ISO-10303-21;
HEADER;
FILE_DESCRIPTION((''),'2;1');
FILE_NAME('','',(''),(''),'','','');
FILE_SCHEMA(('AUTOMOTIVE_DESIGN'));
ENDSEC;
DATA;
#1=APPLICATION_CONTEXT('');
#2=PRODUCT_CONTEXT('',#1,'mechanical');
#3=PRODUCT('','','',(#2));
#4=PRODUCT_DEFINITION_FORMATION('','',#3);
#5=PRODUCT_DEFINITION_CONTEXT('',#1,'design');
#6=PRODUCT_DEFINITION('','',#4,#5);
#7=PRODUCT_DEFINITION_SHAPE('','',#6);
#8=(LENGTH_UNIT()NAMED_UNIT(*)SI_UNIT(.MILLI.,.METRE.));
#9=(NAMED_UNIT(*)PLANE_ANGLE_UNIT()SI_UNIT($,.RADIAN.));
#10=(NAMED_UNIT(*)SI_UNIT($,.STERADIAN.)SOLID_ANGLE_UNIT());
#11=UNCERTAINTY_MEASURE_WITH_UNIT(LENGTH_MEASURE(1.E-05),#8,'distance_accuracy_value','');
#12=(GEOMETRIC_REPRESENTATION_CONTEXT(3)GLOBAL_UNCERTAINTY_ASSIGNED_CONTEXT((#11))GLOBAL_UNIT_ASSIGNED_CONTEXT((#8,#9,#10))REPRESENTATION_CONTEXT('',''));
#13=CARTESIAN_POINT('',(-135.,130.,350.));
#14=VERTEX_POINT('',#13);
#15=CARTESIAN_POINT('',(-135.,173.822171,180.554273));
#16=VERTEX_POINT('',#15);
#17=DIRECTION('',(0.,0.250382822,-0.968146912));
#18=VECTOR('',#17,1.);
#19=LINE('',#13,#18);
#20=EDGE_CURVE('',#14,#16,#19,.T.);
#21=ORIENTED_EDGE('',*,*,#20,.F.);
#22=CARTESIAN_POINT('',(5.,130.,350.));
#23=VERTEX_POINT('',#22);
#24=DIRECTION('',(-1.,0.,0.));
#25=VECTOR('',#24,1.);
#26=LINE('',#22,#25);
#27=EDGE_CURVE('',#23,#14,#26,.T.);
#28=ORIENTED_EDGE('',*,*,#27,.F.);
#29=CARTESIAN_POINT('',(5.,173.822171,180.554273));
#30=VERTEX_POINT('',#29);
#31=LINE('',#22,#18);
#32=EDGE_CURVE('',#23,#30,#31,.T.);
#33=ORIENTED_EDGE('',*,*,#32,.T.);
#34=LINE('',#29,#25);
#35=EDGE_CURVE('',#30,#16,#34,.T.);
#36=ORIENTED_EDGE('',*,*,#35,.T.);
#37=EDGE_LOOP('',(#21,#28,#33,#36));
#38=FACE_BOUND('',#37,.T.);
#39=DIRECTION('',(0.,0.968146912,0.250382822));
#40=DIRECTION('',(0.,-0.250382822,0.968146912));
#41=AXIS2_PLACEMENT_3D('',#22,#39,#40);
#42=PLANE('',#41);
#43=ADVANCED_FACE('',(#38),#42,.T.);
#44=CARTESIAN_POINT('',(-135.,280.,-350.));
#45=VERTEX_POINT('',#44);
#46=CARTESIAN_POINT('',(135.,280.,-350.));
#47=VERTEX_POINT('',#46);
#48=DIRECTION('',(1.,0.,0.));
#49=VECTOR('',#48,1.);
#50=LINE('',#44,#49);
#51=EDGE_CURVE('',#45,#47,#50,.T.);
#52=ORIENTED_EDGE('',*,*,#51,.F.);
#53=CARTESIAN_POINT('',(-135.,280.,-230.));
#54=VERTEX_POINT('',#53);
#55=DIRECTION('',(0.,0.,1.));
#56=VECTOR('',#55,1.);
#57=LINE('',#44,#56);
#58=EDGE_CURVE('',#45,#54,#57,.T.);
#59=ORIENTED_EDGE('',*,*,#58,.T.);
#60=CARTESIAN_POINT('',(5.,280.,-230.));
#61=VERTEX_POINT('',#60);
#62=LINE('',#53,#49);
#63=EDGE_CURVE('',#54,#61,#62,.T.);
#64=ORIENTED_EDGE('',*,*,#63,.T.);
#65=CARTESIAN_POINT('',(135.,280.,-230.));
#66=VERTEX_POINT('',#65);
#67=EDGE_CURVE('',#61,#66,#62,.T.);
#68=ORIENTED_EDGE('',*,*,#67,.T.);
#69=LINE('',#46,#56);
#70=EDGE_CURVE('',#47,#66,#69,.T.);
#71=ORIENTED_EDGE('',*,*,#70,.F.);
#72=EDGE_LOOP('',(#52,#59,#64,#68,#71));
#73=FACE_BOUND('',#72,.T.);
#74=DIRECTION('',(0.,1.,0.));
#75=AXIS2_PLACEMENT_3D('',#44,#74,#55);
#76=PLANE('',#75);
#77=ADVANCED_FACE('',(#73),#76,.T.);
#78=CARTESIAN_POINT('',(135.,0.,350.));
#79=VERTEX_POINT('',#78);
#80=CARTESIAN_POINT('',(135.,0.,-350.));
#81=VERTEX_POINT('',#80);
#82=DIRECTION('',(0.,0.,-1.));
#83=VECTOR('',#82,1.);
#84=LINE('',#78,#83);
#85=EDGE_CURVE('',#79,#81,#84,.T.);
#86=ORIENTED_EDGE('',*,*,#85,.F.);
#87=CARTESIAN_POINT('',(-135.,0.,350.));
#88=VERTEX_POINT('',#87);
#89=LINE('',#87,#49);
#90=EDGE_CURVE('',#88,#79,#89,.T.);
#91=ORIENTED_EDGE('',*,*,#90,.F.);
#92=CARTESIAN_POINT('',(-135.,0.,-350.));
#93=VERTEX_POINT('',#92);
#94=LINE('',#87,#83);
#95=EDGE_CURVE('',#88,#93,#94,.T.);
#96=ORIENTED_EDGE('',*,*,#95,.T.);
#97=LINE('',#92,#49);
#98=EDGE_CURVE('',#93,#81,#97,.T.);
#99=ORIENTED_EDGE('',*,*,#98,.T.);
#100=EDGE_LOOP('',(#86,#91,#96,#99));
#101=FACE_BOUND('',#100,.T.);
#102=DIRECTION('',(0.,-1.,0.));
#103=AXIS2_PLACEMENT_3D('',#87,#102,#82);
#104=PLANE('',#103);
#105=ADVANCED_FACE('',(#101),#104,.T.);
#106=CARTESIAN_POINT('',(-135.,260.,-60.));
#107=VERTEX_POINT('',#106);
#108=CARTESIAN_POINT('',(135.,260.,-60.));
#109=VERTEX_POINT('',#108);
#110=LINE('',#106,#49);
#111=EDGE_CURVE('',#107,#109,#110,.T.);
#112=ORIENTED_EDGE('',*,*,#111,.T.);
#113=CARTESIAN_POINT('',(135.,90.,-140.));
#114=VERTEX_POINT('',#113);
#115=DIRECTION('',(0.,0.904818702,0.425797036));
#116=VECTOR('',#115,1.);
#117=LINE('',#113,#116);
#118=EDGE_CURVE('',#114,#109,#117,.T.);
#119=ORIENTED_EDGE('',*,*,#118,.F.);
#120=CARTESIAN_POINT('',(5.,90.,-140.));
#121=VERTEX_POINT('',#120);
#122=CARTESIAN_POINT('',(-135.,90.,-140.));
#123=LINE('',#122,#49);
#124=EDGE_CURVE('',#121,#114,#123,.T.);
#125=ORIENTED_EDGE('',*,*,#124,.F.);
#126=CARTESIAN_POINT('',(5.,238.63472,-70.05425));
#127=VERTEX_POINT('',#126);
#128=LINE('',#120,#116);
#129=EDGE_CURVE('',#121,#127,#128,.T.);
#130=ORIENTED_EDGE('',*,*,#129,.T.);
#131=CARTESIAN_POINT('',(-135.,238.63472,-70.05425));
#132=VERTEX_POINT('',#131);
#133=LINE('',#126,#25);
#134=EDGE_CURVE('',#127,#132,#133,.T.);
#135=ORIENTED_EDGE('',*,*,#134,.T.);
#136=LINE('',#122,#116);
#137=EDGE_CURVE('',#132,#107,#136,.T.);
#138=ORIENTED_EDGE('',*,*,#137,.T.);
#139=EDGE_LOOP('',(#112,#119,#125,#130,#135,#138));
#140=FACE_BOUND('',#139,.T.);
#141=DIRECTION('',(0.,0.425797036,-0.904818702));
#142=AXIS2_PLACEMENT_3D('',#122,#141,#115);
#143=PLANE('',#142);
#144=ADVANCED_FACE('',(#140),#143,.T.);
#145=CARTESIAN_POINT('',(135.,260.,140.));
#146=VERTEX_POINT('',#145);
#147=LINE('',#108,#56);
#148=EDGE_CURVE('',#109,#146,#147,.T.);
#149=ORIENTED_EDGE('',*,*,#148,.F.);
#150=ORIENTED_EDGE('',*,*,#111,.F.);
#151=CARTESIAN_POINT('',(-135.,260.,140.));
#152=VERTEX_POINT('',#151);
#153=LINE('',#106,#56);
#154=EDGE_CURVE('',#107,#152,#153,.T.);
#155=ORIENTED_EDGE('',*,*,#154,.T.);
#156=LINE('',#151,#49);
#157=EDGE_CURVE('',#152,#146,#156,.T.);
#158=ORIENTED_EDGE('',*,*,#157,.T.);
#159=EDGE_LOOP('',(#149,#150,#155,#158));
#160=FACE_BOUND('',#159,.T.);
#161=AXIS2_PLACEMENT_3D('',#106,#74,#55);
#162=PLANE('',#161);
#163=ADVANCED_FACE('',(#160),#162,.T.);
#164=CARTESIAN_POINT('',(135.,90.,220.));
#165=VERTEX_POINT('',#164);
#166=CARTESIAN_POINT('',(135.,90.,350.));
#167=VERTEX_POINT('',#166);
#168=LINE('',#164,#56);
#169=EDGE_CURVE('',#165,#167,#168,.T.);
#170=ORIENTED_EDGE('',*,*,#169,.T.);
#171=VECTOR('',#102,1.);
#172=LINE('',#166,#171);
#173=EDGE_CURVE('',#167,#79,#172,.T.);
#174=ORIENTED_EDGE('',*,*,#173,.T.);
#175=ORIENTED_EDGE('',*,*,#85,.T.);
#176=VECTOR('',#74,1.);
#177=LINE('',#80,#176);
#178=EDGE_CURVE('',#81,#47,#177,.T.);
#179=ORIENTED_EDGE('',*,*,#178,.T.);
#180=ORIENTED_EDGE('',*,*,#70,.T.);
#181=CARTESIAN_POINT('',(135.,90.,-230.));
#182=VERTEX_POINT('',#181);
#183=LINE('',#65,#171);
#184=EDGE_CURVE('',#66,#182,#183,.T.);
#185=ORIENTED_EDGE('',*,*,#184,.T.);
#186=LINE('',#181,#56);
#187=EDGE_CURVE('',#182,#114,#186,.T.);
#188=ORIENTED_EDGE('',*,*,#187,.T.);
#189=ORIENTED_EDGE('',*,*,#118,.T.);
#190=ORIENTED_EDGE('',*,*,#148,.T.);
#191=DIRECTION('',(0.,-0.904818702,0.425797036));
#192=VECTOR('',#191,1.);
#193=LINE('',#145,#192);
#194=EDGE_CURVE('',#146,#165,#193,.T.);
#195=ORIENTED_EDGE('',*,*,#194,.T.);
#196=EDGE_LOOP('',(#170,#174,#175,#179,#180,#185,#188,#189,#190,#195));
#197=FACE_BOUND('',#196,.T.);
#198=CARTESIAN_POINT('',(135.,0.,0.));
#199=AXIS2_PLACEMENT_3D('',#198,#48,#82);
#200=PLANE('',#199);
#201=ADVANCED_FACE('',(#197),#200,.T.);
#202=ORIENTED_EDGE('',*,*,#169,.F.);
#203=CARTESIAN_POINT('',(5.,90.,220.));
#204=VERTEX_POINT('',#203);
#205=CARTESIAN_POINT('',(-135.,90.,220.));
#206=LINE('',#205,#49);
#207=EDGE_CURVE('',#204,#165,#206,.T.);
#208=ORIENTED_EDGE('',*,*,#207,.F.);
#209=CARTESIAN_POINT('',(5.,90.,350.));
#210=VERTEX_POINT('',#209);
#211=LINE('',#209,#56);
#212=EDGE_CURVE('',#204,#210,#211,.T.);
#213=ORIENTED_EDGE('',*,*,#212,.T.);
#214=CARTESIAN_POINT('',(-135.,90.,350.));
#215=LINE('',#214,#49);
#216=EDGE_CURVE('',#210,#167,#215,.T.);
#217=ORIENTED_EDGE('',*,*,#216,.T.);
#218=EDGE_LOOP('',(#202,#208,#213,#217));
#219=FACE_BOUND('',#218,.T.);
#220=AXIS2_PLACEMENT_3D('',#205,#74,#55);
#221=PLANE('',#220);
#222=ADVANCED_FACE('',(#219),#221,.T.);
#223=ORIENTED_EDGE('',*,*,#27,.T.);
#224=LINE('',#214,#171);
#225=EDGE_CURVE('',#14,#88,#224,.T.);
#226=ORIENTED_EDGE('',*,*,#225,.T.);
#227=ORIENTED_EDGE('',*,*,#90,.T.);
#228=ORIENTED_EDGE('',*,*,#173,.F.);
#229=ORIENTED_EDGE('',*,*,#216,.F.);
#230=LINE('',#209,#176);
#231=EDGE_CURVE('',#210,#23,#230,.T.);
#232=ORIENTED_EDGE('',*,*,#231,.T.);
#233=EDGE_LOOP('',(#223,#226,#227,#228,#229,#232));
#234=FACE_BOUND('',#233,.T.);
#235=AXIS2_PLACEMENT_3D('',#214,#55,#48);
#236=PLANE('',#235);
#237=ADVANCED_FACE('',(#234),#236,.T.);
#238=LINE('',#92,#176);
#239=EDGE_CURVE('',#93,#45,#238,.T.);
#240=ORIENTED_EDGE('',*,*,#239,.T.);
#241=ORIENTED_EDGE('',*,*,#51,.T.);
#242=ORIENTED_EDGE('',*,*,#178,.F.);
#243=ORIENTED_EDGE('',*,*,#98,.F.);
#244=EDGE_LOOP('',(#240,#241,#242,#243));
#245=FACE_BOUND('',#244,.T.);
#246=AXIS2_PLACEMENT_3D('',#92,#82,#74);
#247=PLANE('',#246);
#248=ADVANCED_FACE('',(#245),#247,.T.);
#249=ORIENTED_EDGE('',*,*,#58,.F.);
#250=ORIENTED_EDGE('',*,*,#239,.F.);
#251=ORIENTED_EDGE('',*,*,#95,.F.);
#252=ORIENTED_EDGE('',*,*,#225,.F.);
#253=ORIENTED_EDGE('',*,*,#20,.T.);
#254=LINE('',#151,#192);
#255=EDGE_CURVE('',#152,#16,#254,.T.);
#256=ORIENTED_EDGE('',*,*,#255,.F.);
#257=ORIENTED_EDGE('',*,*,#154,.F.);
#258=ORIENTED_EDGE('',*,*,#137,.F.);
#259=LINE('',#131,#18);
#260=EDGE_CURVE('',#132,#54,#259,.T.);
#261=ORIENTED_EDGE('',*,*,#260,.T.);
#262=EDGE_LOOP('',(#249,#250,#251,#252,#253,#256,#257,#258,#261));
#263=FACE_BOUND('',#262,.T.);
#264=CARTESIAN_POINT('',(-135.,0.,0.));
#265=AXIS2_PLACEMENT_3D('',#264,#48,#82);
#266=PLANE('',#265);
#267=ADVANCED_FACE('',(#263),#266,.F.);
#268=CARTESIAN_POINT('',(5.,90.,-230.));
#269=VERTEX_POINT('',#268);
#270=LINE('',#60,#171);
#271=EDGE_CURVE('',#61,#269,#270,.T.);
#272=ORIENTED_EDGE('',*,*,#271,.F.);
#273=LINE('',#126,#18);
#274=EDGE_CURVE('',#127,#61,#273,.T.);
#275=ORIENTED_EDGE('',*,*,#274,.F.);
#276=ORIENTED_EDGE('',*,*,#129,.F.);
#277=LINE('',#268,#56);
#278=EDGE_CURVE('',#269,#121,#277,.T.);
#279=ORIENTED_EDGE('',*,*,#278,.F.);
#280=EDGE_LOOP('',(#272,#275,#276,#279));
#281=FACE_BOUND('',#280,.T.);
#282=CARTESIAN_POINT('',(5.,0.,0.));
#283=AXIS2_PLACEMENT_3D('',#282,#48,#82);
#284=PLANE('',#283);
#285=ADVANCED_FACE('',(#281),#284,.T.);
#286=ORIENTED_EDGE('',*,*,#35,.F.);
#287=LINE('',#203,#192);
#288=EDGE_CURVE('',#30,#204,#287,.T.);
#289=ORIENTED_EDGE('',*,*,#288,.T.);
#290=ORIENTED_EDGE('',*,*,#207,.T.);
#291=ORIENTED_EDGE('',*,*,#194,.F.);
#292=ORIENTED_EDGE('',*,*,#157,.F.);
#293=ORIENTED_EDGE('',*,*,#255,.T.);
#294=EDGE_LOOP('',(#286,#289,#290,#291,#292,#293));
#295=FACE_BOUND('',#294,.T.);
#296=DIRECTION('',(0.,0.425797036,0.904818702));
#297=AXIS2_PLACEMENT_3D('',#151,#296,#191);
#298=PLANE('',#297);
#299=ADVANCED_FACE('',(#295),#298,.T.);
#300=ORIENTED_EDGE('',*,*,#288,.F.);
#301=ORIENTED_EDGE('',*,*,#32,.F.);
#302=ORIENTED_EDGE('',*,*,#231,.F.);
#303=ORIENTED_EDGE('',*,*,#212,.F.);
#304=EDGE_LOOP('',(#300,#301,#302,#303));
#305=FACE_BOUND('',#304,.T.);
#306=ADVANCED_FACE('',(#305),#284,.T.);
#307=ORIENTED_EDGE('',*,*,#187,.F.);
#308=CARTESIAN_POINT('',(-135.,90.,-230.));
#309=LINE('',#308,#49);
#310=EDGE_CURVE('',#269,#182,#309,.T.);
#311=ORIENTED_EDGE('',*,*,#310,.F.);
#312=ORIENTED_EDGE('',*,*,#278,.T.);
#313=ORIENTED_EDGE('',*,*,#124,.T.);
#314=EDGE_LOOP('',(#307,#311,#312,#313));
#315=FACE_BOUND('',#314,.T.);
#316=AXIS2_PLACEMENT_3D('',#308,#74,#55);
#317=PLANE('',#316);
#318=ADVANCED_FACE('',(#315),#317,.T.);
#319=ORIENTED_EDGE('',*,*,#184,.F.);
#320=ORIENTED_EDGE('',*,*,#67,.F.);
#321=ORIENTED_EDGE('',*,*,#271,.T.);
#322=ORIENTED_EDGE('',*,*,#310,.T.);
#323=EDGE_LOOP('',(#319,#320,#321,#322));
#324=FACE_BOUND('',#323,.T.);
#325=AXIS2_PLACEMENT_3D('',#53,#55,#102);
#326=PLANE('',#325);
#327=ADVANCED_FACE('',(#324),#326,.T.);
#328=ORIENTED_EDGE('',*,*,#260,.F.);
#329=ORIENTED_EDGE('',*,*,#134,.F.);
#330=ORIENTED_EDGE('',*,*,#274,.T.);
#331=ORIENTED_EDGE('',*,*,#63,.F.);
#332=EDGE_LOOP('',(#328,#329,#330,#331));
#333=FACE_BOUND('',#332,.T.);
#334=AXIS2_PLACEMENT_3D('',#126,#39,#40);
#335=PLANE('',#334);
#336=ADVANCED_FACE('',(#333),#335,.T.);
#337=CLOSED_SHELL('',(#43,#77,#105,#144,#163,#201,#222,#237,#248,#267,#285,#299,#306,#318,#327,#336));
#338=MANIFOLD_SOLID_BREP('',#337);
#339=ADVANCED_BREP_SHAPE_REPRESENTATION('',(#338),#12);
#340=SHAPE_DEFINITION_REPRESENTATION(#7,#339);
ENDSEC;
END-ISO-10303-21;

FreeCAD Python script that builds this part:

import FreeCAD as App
import Part
import Sketcher

V = App.Vector
Q = App.Units.Quantity

doc = App.newDocument("Part")
params = doc.addObject("Spreadsheet::Sheet", "Params")
for row, (alias, value) in enumerate([
    ("sketch1_width", "90 mm"),
    ("sketch1_width2", "280 mm"),
    ("sketch1_height", "700 mm"),
    ("sketch1_height2", "120 mm"),
    ("sketch1_height3", "200 mm"),
    ("pad1_length", "135 mm"),
    ("pad1_length2", "135 mm"),
    ("sketch2_width", "40 mm"),
    ("sketch2_width2", "190 mm"),
    ("sketch2_height", "130 mm"),
    ("sketch2_height2", "90 mm"),
    ("pad2_length", "140 mm"),
], start=1):
    params.set(f"A{row}", alias)
    params.set(f"B{row}", "=" + value)
    params.setAlias(f"B{row}", alias)

body = doc.addObject("PartDesign::Body", "Body")

# Sketch on YZ plane
sketch1 = doc.addObject("Sketcher::SketchObject", "Sketch")
body.addObject(sketch1)
sketch1.AttachmentSupport = (doc.YZ_Plane, [""])
sketch1.MapMode = "FlatFace"
sketch1.addGeometry([
    Part.LineSegment(V(90, 350, 0), V(0, 350, 0)),  # 0
    Part.LineSegment(V(0, 350, 0), V(0, -350, 0)),  # 1
    Part.LineSegment(V(0, -350, 0), V(280, -350, 0)),  # 2
    Part.LineSegment(V(280, -350, 0), V(280, -230, 0)),  # 3
    Part.LineSegment(V(280, -230, 0), V(90, -230, 0)),  # 4
    Part.LineSegment(V(90, -230, 0), V(90, -140, 0)),  # 5
    Part.LineSegment(V(90, -140, 0), V(260, -60, 0)),  # 6
    Part.LineSegment(V(260, -60, 0), V(260, 140, 0)),  # 7
    Part.LineSegment(V(260, 140, 0), V(90, 220, 0)),  # 8
    Part.LineSegment(V(90, 220, 0), V(90, 350, 0)),  # 9
], False)
sketch1.addConstraint([
    Sketcher.Constraint("Coincident", 0, 2, 1, 1),
    Sketcher.Constraint("Coincident", 1, 2, 2, 1),
    Sketcher.Constraint("Coincident", 2, 2, 3, 1),
    Sketcher.Constraint("Coincident", 3, 2, 4, 1),
    Sketcher.Constraint("Coincident", 4, 2, 5, 1),
    Sketcher.Constraint("Coincident", 5, 2, 6, 1),
    Sketcher.Constraint("Coincident", 6, 2, 7, 1),
    Sketcher.Constraint("Coincident", 7, 2, 8, 1),
    Sketcher.Constraint("Coincident", 8, 2, 9, 1),
    Sketcher.Constraint("Coincident", 9, 2, 0, 1),
    Sketcher.Constraint("Horizontal", 0),
    Sketcher.Constraint("Vertical", 1),
    Sketcher.Constraint("Horizontal", 2),
    Sketcher.Constraint("Vertical", 3),
    Sketcher.Constraint("Horizontal", 4),
    Sketcher.Constraint("Vertical", 5),
    Sketcher.Constraint("Vertical", 7),
    Sketcher.Constraint("Vertical", 9),
    Sketcher.Constraint("Symmetric", 0, 2, 1, 2, -1, 1),
    Sketcher.Constraint("Vertical", 5, 2, 8, 2),
    Sketcher.Constraint("Equal", 0, 5),
    Sketcher.Constraint("Equal", 6, 8),
    Sketcher.Constraint("DistanceX", 0, 2, 0, 1, Q("90 mm")),
    Sketcher.Constraint("DistanceX", 2, 1, 2, 2, Q("280 mm")),
    Sketcher.Constraint("DistanceY", 1, 2, 1, 1, Q("700 mm")),
    Sketcher.Constraint("DistanceY", 3, 1, 3, 2, Q("120 mm")),
    Sketcher.Constraint("DistanceY", 7, 1, 7, 2, Q("200 mm")),
    Sketcher.Constraint("DistanceY", 9, 1, 9, 2, Q("130 mm")),
    Sketcher.Constraint("DistanceX", -1, 1, 6, 2, Q("260 mm")),
])
sketch1.setExpression("Constraints[22]", "Params.sketch1_width")
sketch1.setExpression("Constraints[23]", "Params.sketch1_width2")
sketch1.setExpression("Constraints[24]", "Params.sketch1_height")
sketch1.setExpression("Constraints[25]", "Params.sketch1_height2")
sketch1.setExpression("Constraints[26]", "Params.sketch1_height3")
pad1 = doc.addObject("PartDesign::Pad", "Pad")
body.addObject(pad1)
pad1.Profile = sketch1
pad1.Type = "TwoLengths"
pad1.setExpression("Length", "Params.pad1_length")
pad1.setExpression("Length2", "Params.pad1_length2")

# Sketch on YZ plane
sketch2 = doc.addObject("Sketcher::SketchObject", "Sketch001")
body.addObject(sketch2)
sketch2.AttachmentSupport = (doc.YZ_Plane, [""])
sketch2.MapMode = "FlatFace"
sketch2.AttachmentOffset = App.Placement(V(0, 0, -135), App.Rotation())
sketch2.addGeometry([
    Part.LineSegment(V(90, 350, 0), V(130, 350, 0)),  # 0
    Part.LineSegment(V(130, 350, 0), V(174, 181, 0)),  # 1
    Part.LineSegment(V(174, 181, 0), V(90, 220, 0)),  # 2
    Part.LineSegment(V(90, 220, 0), V(90, 350, 0)),  # 3
    Part.LineSegment(V(280, -230, 0), V(90, -230, 0)),  # 4
    Part.LineSegment(V(90, -230, 0), V(90, -140, 0)),  # 5
    Part.LineSegment(V(90, -140, 0), V(239, -70, 0)),  # 6
    Part.LineSegment(V(239, -70, 0), V(280, -230, 0)),  # 7
], False)
sketch2.addConstraint([
    Sketcher.Constraint("Coincident", 0, 2, 1, 1),
    Sketcher.Constraint("Coincident", 1, 2, 2, 1),
    Sketcher.Constraint("Coincident", 2, 2, 3, 1),
    Sketcher.Constraint("Coincident", 3, 2, 0, 1),
    Sketcher.Constraint("Coincident", 4, 2, 5, 1),
    Sketcher.Constraint("Coincident", 5, 2, 6, 1),
    Sketcher.Constraint("Coincident", 6, 2, 7, 1),
    Sketcher.Constraint("Coincident", 7, 2, 4, 1),
    Sketcher.Constraint("Horizontal", 0),
    Sketcher.Constraint("Vertical", 3),
    Sketcher.Constraint("Horizontal", 4),
    Sketcher.Constraint("Vertical", 5),
    Sketcher.Constraint("Parallel", 1, 7),
    Sketcher.Constraint("Vertical", 3, 2, 4, 2),
    Sketcher.Constraint("DistanceX", 0, 1, 0, 2, Q("40 mm")),
    Sketcher.Constraint("DistanceX", 4, 2, 4, 1, Q("190 mm")),
    Sketcher.Constraint("DistanceY", 3, 1, 3, 2, Q("130 mm")),
    Sketcher.Constraint("DistanceY", 5, 1, 5, 2, Q("90 mm")),
    Sketcher.Constraint("DistanceX", -1, 1, 0, 2, Q("130 mm")),
    Sketcher.Constraint("DistanceY", -1, 1, 0, 2, Q("350 mm")),
    Sketcher.Constraint("DistanceY", 4, 2, -1, 1, Q("230 mm")),
    Sketcher.Constraint("Distance", 2, Q("92.639742 mm")),
    Sketcher.Constraint("Distance", 7, Q("165.20814 mm")),
    Sketcher.Constraint("DistanceX", -1, 1, 1, 2, Q("173.822171 mm")),
])
sketch2.setExpression("Constraints[14]", "Params.sketch2_width")
sketch2.setExpression("Constraints[15]", "Params.sketch2_width2")
sketch2.setExpression("Constraints[16]", "Params.sketch2_height")
sketch2.setExpression("Constraints[17]", "Params.sketch2_height2")
pad2 = doc.addObject("PartDesign::Pad", "Pad001")
body.addObject(pad2)
pad2.Profile = sketch2
pad2.setExpression("Length", "Params.pad2_length")

doc.recompute()
